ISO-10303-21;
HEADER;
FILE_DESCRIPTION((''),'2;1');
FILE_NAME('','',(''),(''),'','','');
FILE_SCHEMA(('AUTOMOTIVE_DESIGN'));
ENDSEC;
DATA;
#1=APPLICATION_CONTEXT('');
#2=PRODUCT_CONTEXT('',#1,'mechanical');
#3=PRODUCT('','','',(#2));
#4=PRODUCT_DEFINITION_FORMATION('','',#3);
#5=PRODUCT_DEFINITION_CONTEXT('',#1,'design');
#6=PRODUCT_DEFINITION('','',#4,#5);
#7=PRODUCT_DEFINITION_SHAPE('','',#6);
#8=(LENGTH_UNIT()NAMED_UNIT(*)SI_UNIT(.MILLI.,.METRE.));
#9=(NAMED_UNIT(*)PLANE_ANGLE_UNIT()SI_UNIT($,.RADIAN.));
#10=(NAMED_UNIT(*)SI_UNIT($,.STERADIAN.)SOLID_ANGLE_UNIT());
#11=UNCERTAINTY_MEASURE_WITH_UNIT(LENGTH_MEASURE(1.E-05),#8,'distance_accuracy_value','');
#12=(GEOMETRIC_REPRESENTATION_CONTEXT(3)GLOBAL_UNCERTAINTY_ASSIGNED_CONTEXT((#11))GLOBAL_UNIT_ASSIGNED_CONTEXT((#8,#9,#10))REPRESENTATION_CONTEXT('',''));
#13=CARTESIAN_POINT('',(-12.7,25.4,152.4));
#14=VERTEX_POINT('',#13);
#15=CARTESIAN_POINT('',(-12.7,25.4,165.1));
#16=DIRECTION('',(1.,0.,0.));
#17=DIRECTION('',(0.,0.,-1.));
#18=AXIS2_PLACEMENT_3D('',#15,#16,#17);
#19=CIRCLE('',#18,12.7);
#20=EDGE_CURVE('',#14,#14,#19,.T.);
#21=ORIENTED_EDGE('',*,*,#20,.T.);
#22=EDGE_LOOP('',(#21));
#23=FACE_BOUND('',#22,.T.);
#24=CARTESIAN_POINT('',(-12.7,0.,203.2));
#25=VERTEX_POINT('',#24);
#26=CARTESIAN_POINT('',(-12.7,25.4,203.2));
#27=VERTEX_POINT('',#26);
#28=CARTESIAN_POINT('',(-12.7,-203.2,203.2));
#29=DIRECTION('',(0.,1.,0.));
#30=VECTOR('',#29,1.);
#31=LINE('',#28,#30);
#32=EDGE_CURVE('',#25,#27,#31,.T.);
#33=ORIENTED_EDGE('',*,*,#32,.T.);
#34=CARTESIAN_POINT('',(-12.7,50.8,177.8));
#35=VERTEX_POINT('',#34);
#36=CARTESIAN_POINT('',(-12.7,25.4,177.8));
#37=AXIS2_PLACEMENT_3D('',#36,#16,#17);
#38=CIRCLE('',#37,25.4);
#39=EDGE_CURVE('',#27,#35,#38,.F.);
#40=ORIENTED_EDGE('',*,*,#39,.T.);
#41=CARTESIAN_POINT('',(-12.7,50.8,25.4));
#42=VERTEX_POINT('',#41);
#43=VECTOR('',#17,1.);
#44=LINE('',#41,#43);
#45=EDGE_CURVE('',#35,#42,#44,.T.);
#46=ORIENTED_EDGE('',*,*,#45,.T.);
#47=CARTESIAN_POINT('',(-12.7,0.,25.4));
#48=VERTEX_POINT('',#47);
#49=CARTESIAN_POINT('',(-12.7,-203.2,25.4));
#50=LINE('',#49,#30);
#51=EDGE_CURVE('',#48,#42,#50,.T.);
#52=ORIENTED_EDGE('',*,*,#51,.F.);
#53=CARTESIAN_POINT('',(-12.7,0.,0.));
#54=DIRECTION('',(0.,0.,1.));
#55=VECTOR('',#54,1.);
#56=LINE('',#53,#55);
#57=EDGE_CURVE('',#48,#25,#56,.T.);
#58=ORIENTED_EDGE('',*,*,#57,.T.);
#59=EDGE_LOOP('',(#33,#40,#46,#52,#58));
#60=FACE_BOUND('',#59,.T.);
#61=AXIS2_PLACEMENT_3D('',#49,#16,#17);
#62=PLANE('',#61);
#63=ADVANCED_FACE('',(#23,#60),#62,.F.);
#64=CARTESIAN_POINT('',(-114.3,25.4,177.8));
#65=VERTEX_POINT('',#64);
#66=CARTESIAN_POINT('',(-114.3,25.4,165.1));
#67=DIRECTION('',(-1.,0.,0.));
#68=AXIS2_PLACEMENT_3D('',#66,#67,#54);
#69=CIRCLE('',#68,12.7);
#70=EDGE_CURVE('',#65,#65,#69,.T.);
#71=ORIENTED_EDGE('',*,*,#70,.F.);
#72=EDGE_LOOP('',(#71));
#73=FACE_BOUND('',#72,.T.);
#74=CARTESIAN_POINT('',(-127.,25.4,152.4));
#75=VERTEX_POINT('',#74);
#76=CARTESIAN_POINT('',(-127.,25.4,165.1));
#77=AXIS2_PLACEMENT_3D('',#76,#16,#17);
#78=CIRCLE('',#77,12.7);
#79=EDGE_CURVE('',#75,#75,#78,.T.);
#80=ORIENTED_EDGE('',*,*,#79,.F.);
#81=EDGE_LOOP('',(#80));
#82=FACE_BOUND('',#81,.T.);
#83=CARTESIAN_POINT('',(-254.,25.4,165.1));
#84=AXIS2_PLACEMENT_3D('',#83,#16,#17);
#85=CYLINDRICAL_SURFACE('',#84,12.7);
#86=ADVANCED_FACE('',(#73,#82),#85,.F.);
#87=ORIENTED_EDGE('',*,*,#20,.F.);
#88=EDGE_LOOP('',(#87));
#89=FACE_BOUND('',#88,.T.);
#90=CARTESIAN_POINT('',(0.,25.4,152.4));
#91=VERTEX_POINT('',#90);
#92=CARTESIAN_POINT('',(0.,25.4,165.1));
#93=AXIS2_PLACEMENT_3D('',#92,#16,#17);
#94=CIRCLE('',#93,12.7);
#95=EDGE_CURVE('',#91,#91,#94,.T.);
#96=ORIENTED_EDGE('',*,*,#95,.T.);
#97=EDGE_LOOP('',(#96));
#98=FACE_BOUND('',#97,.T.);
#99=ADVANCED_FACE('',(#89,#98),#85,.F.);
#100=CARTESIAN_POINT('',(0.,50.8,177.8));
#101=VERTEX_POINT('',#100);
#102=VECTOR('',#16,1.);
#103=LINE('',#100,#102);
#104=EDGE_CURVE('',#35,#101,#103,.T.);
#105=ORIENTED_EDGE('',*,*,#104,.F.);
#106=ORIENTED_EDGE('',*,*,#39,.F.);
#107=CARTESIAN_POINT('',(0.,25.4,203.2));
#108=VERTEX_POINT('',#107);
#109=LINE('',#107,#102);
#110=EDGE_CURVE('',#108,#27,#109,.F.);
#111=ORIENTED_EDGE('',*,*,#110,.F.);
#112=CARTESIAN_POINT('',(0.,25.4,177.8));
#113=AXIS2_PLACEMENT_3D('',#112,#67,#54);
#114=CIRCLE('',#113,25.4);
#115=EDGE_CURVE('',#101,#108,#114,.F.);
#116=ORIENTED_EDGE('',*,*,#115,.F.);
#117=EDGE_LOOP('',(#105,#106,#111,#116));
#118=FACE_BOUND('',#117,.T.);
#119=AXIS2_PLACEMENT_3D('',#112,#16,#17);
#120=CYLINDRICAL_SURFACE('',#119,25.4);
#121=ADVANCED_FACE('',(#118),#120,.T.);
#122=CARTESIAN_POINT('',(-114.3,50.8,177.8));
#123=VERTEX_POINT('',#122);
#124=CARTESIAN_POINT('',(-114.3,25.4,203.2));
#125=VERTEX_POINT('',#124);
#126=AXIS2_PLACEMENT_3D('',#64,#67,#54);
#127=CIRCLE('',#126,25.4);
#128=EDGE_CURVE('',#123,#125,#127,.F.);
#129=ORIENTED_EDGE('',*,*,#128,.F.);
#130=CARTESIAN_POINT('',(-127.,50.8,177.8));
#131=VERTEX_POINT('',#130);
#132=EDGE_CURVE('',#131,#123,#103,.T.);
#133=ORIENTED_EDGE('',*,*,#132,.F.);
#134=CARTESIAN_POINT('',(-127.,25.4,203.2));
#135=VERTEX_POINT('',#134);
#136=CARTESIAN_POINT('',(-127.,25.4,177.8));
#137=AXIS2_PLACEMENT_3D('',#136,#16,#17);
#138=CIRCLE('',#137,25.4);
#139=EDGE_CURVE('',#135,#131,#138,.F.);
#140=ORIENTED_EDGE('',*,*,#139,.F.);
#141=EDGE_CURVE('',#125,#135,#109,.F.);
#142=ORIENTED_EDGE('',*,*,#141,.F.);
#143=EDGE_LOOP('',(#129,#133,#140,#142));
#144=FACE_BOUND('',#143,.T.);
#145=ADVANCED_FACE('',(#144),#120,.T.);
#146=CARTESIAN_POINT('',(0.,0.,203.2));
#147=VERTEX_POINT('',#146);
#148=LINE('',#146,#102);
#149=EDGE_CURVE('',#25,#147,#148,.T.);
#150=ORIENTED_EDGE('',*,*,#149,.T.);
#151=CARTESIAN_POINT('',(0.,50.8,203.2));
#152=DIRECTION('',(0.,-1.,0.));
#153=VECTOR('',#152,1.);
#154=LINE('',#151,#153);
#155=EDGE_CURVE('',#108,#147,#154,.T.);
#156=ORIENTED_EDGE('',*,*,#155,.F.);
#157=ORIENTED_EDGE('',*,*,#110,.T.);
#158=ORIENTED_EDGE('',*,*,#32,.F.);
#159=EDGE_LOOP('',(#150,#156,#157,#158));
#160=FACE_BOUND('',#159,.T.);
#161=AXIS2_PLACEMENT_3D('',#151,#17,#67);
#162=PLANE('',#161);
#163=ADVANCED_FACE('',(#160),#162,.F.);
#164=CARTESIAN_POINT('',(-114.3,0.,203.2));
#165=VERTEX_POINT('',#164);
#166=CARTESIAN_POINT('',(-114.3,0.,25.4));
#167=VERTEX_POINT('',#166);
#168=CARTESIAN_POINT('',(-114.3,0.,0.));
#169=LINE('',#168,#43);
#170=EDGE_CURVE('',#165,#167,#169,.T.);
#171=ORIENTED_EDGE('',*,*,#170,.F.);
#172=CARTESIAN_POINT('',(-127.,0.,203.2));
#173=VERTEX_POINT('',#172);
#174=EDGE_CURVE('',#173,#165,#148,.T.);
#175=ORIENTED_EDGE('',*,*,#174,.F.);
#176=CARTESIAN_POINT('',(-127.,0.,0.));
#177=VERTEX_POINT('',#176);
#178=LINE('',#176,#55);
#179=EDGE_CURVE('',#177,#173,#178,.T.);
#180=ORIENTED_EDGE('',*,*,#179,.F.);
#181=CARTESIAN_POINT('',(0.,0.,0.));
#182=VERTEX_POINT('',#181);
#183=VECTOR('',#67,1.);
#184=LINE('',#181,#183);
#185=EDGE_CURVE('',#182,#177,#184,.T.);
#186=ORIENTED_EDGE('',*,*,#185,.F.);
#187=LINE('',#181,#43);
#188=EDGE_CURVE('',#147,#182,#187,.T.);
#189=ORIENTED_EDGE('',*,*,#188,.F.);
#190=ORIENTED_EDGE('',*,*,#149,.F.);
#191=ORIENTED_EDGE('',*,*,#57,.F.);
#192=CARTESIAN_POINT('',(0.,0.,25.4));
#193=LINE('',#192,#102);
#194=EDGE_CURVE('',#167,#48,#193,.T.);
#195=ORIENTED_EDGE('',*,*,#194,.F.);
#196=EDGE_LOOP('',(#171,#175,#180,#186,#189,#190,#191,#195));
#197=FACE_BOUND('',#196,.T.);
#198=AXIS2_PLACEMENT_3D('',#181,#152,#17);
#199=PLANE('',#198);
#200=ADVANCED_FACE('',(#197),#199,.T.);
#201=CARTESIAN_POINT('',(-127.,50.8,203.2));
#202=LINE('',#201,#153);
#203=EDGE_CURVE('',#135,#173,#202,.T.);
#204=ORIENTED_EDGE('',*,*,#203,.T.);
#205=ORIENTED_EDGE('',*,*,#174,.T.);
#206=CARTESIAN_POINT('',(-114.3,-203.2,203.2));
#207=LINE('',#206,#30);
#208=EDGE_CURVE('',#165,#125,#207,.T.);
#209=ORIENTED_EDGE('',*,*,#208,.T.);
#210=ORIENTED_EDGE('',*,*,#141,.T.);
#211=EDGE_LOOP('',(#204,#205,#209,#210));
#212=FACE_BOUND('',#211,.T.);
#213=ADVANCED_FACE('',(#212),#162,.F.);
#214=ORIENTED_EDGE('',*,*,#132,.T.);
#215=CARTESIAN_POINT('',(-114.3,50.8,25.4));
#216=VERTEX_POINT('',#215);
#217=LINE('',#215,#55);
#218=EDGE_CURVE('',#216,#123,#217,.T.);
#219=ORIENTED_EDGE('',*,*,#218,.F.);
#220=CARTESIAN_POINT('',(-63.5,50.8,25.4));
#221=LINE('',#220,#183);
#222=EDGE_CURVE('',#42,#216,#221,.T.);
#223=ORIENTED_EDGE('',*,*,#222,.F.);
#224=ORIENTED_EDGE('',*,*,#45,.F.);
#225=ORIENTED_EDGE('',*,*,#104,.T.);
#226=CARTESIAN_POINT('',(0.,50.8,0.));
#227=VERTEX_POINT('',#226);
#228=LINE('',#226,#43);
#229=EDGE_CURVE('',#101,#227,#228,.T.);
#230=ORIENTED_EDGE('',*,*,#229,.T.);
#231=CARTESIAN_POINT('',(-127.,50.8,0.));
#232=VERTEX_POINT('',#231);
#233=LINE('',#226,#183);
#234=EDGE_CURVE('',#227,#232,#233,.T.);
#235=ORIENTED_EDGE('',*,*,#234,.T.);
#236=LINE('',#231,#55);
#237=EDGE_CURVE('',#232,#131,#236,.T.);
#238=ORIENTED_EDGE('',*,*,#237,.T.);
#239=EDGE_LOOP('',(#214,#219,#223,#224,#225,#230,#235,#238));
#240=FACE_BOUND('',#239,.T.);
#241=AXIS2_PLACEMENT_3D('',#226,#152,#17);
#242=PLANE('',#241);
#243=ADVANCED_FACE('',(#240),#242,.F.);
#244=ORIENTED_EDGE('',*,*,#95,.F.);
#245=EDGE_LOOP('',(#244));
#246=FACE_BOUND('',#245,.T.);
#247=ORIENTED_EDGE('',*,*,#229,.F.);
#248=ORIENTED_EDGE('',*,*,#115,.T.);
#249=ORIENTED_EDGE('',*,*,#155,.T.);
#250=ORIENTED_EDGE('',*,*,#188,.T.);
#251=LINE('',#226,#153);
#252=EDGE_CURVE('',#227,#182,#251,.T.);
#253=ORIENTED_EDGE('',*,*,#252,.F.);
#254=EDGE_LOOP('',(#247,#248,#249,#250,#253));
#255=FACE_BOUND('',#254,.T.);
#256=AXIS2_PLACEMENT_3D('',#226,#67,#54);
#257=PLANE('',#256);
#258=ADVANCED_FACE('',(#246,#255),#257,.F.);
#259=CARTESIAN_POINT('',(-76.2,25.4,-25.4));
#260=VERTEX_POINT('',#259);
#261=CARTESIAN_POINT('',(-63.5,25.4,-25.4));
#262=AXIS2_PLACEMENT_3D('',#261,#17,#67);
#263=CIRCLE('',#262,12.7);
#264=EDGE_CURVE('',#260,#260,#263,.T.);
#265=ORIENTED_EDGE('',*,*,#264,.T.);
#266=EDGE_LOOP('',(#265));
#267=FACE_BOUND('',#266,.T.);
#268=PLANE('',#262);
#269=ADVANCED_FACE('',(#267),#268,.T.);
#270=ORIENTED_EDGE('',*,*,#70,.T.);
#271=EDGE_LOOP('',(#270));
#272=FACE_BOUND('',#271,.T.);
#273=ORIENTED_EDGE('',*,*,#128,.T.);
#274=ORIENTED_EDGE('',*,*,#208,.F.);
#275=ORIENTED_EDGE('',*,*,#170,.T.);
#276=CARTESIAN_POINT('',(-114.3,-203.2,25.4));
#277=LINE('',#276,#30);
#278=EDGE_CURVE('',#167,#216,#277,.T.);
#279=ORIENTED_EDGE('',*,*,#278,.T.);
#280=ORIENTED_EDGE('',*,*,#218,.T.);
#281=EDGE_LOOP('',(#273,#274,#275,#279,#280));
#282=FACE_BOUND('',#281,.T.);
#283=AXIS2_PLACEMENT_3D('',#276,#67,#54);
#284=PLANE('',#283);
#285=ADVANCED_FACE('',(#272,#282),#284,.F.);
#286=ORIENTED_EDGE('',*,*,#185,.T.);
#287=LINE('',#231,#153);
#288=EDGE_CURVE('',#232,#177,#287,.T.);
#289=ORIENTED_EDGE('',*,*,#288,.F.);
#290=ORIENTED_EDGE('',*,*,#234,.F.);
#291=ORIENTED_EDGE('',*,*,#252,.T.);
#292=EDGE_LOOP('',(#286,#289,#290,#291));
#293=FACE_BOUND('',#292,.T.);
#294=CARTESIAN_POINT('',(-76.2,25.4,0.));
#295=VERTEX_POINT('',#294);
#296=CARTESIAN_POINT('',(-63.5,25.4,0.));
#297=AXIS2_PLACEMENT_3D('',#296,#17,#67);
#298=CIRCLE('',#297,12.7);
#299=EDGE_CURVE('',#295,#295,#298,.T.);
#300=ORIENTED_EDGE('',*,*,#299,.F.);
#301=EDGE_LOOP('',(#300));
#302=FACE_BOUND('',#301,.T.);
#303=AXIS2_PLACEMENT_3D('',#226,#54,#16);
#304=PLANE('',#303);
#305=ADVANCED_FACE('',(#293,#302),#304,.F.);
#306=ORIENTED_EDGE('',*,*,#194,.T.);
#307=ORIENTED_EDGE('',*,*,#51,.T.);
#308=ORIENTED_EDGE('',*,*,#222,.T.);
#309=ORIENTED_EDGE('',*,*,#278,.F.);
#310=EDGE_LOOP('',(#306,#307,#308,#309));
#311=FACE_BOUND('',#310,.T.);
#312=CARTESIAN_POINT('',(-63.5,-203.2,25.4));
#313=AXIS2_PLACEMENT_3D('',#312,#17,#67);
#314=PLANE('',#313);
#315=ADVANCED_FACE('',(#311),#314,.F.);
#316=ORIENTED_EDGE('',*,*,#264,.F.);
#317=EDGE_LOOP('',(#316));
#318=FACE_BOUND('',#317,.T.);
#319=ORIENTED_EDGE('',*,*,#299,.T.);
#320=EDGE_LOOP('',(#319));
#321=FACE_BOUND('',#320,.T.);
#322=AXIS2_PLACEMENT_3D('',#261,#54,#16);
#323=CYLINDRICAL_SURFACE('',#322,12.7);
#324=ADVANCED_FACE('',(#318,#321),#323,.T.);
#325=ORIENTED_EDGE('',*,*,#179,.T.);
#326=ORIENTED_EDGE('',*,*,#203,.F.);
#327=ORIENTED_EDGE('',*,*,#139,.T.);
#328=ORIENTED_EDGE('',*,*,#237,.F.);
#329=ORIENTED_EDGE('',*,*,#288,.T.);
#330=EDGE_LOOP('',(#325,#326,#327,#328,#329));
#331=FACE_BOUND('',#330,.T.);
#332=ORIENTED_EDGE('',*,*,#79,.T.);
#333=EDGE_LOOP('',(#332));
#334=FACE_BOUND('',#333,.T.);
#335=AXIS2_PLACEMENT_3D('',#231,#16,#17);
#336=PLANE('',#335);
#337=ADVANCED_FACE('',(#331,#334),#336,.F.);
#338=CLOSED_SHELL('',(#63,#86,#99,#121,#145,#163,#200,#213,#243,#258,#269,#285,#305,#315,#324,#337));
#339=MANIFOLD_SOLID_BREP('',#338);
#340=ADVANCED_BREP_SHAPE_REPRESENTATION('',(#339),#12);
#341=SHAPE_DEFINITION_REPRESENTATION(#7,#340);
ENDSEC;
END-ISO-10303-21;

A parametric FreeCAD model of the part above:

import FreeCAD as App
import Part
import Sketcher
Q = App.Units.Quantity


def edges_at(feature, points):
    """Names of the edges that pass closest to the given points."""
    edges = feature.Shape.Edges
    near = lambda p: min(range(len(edges)), key=lambda i: edges[i].distToShape(Part.Vertex(*p))[0])
    return sorted({f"Edge{near(p) + 1}" for p in points})


def add_polygon(sketch, points):
    """Adds a closed chain of lines whose ends are joined by coincident constraints."""
    first, n = sketch.GeometryCount, len(points)
    for a, b in zip(points, points[1:] + points[:1]):
        sketch.addGeometry(Part.LineSegment(App.Vector(*a, 0), App.Vector(*b, 0)), False)
    for i in range(n):
        sketch.addConstraint(Sketcher.Constraint("Coincident", first + i, 2, first + (i + 1) % n, 1))

doc = App.newDocument("Part")
body = doc.addObject("PartDesign::Body", "Body")

# Sketch on XZ plane
sketch1 = doc.addObject("Sketcher::SketchObject", "Sketch")
body.addObject(sketch1)
sketch1.AttachmentSupport = (doc.XZ_Plane, [""])
sketch1.MapMode = "FlatFace"
add_polygon(sketch1, [(-127, 0), (-127, 203), (0, 203), (0, 0)])  # lines 0-3
sketch1.addConstraint([
    Sketcher.Constraint("Vertical", 0),
    Sketcher.Constraint("Horizontal", 1),
    Sketcher.Constraint("Vertical", 2),
    Sketcher.Constraint("Horizontal", 3),
    Sketcher.Constraint("Coincident", 2, 2, -1, 1),
    Sketcher.Constraint("DistanceX", 1, 1, 1, 2, Q("5 in")),
    Sketcher.Constraint("DistanceY", 0, 1, 0, 2, Q("8 in")),
])
pad1 = doc.addObject("PartDesign::Pad", "Pad")
body.addObject(pad1)
pad1.Profile = sketch1
pad1.Length = Q("2 in")
pad1.Reversed = True

# Sketch on XZ plane
sketch2 = doc.addObject("Sketcher::SketchObject", "Sketch001")
body.addObject(sketch2)
sketch2.AttachmentSupport = (doc.XZ_Plane, [""])
sketch2.MapMode = "FlatFace"
sketch2.AttachmentOffset = App.Placement(App.Vector(0, 0, -2 * 25.4), App.Rotation())
add_polygon(sketch2, [(-13, 25), (-114, 25), (-114, 203), (-13, 203)])  # lines 0-3
sketch2.addConstraint([
    Sketcher.Constraint("Horizontal", 0),
    Sketcher.Constraint("Vertical", 1),
    Sketcher.Constraint("Horizontal", 2),
    Sketcher.Constraint("Vertical", 3),
    Sketcher.Constraint("DistanceX", 0, 2, 0, 1, Q("4 in")),
    Sketcher.Constraint("DistanceY", 1, 1, 1, 2, Q("7 in")),
    Sketcher.Constraint("DistanceY", -1, 1, 0, 2, Q("1 in")),
    Sketcher.Constraint("DistanceX", 0, 2, -1, 1, Q("4.5 in")),
])
pocket1 = doc.addObject("PartDesign::Pocket", "Pocket")
body.addObject(pocket1)
pocket1.Profile = sketch2
pocket1.Length = Q("10 in")
pocket1.Reversed = True

# Sketch on YZ plane
sketch3 = doc.addObject("Sketcher::SketchObject", "Sketch002")
body.addObject(sketch3)
sketch3.AttachmentSupport = (doc.YZ_Plane, [""])
sketch3.MapMode = "FlatFace"
sketch3.addGeometry(Part.Circle(App.Vector(25, 165, 0), App.Vector(0, 0, 1), 13), False)
sketch3.addConstraint([
    Sketcher.Constraint("Diameter", 0, Q("1 in")),
    Sketcher.Constraint("DistanceX", -1, 1, 0, 3, Q("1 in")),
    Sketcher.Constraint("DistanceY", -1, 1, 0, 3, Q("6.5 in")),
])
pocket2 = doc.addObject("PartDesign::Pocket", "Pocket001")
body.addObject(pocket2)
pocket2.Profile = sketch3
pocket2.Length = Q("10 in")

# Sketch on XY plane
sketch4 = doc.addObject("Sketcher::SketchObject", "Sketch003")
body.addObject(sketch4)
sketch4.AttachmentSupport = (doc.XY_Plane, [""])
sketch4.MapMode = "FlatFace"
sketch4.addGeometry(Part.Circle(App.Vector(-64, 25, 0), App.Vector(0, 0, 1), 13), False)
sketch4.addConstraint([
    Sketcher.Constraint("Diameter", 0, Q("1 in")),
    Sketcher.Constraint("DistanceY", -1, 1, 0, 3, Q("1 in")),
    Sketcher.Constraint("DistanceX", 0, 3, -1, 1, Q("2.5 in")),
])
pad2 = doc.addObject("PartDesign::Pad", "Pad001")
body.addObject(pad2)
pad2.Profile = sketch4
pad2.Length = Q("1 in")
pad2.Reversed = True
doc.recompute()

fillet = doc.addObject("PartDesign::Fillet", "Fillet")
body.addObject(fillet)
fillet.Base = (pad2, edges_at(pad2, [(-120.65, 50.8, 203.2)]))
fillet.Radius = Q("1 in")
doc.recompute()

fillet2 = doc.addObject("PartDesign::Fillet", "Fillet001")
body.addObject(fillet2)
fillet2.Base = (fillet, edges_at(fillet, [(-6.35, 50.8, 203.2)]))
fillet2.Radius = Q("1 in")

doc.recompute()
